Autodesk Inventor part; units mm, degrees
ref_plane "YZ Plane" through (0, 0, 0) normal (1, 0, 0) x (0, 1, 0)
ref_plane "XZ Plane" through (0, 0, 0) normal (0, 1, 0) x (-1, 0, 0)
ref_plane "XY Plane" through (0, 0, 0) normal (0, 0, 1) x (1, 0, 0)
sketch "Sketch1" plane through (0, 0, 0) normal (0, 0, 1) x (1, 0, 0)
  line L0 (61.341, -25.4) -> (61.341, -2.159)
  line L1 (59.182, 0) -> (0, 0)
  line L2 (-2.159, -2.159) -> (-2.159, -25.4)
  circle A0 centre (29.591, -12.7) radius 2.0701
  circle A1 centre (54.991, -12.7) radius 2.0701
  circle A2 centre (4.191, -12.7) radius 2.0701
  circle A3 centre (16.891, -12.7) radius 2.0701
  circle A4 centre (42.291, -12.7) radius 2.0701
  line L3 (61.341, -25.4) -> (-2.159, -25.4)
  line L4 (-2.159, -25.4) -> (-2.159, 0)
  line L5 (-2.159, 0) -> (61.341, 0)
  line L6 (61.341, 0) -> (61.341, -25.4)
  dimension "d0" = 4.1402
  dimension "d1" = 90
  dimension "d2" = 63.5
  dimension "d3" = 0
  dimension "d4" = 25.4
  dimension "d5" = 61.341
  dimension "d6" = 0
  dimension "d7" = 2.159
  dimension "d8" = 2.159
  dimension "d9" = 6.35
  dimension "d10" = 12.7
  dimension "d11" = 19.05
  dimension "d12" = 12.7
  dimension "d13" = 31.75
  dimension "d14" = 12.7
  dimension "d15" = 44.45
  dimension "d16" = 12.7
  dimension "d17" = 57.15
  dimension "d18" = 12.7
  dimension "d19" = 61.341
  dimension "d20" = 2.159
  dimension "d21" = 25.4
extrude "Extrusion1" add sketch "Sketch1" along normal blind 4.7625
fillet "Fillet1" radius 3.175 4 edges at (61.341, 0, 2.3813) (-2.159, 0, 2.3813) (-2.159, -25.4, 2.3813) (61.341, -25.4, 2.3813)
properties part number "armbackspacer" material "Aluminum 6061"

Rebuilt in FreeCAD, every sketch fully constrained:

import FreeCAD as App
import Part
import Sketcher
Q = App.Units.Quantity


def edges_at(feature, points):
    """Names of the edges that pass closest to the given points."""
    edges = feature.Shape.Edges
    near = lambda p: min(range(len(edges)), key=lambda i: edges[i].distToShape(Part.Vertex(*p))[0])
    return sorted({f"Edge{near(p) + 1}" for p in points})


def add_polygon(sketch, points):
    """Adds a closed chain of lines whose ends are joined by coincident constraints."""
    first, n = sketch.GeometryCount, len(points)
    for a, b in zip(points, points[1:] + points[:1]):
        sketch.addGeometry(Part.LineSegment(App.Vector(*a, 0), App.Vector(*b, 0)), False)
    for i in range(n):
        sketch.addConstraint(Sketcher.Constraint("Coincident", first + i, 2, first + (i + 1) % n, 1))

doc = App.newDocument("Part")
params = doc.addObject("Spreadsheet::Sheet", "Params")
for row, (alias, value) in enumerate([
    ("sketch1_height", "1 in"),
    ("sketch1_diameter", "0.163 in"),
    ("sketch1_width", "2.5 in"),
    ("pad1_length", "0.1875 in"),
    ("fillet_radius", "0.125 in"),
], start=1):
    params.set(f"A{row}", alias)
    params.set(f"B{row}", "=" + value)
    params.setAlias(f"B{row}", alias)

body = doc.addObject("PartDesign::Body", "Body")

sketch1 = body.newObject("Sketcher::SketchObject", "Sketch")
sketch1.AttachmentSupport = (doc.getObject("XY_Plane"), [""])
sketch1.MapMode = "FlatFace"
add_polygon(sketch1, [(-2.159, -25.4), (61.341, -25.4), (61.341, 0), (-2.159, 0)])
sketch1.addGeometry(Part.Circle(App.Vector(4.191, -12.7, 0), App.Vector(0, 0, 1), 2.0701), False)
sketch1.addGeometry(Part.Circle(App.Vector(16.891, -12.7, 0), App.Vector(0, 0, 1), 2.0701), False)
sketch1.addGeometry(Part.Circle(App.Vector(29.591, -12.7, 0), App.Vector(0, 0, 1), 2.0701), False)
sketch1.addGeometry(Part.Circle(App.Vector(42.291, -12.7, 0), App.Vector(0, 0, 1), 2.0701), False)
sketch1.addGeometry(Part.Circle(App.Vector(54.991, -12.7, 0), App.Vector(0, 0, 1), 2.0701), False)
sketch1.addConstraint([
    Sketcher.Constraint("Horizontal", 0),
    Sketcher.Constraint("Vertical", 1),
    Sketcher.Constraint("Horizontal", 2),
    Sketcher.Constraint("Vertical", 3),
    Sketcher.Constraint("Equal", 4, 5),
    Sketcher.Constraint("Equal", 5, 6),
    Sketcher.Constraint("Equal", 6, 7),
    Sketcher.Constraint("Equal", 7, 8),
    Sketcher.Constraint("PointOnObject", 1, 2, -1),
    Sketcher.Constraint("Horizontal", 4, 3, 5, 3),
    Sketcher.Constraint("Horizontal", 5, 3, 6, 3),
    Sketcher.Constraint("Horizontal", 6, 3, 7, 3),
    Sketcher.Constraint("Horizontal", 7, 3, 8, 3),
    Sketcher.Constraint("DistanceY", 1, 1, 1, 2, Q("1 in")),
    Sketcher.Constraint("Diameter", 4, Q("0.163 in")),
    Sketcher.Constraint("DistanceX", 0, 1, 0, 2, Q("2.5 in")),
    Sketcher.Constraint("DistanceX", 4, 3, 6, 3, Q("1 in")),
    Sketcher.Constraint("DistanceX", 5, 3, 7, 3, Q("1 in")),
    Sketcher.Constraint("DistanceX", 6, 3, 8, 3, Q("1 in")),
    Sketcher.Constraint("DistanceY", 4, 3, -1, 1, Q("0.5 in")),
    Sketcher.Constraint("DistanceX", 4, 3, 5, 3, Q("0.5 in")),
    Sketcher.Constraint("DistanceX", 8, 3, 0, 2, Q("0.25 in")),
    Sketcher.Constraint("DistanceX", -1, 1, 0, 2, Q("2.415 in")),
])
sketch1.setExpression("Constraints[17]", "Params.sketch1_height")
sketch1.setExpression("Constraints[18]", "Params.sketch1_diameter")
sketch1.setExpression("Constraints[19]", "Params.sketch1_width")
pad1 = body.newObject("PartDesign::Pad", "Pad")
pad1.Profile = sketch1
pad1.setExpression("Length", "Params.pad1_length")
doc.recompute()

fillet = body.newObject("PartDesign::Fillet", "Fillet")
fillet.Base = (pad1, edges_at(pad1, [
    (61.341, 0, 2.381),
    (-2.159, 0, 2.381),
    (-2.159, -25.4, 2.381),
    (61.341, -25.4, 2.381),
]))
fillet.setExpression("Radius", "Params.fillet_radius")

doc.recompute()
